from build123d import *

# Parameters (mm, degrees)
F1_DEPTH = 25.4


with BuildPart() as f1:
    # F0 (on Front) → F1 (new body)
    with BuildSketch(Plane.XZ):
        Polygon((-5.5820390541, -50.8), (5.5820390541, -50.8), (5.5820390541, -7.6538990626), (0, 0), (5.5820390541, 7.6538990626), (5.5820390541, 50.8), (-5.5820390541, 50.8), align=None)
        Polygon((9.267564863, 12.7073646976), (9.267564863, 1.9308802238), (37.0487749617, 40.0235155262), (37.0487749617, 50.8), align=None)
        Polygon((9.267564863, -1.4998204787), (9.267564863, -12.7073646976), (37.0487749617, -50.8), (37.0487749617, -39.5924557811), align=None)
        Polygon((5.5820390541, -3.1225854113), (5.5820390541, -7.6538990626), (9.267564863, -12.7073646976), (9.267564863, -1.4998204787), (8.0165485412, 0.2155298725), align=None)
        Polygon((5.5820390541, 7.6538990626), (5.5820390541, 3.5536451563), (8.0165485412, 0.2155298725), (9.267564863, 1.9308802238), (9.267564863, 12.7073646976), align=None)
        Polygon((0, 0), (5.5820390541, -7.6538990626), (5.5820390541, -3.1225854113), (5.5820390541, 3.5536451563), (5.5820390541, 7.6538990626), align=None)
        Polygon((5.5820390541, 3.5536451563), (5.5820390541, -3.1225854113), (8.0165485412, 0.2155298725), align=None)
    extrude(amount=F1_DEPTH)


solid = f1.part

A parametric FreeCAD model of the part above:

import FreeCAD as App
import Part
import Sketcher
from FreeCAD import Vector
Q = App.Units.Quantity

doc = App.newDocument("Part")
body = doc.addObject("PartDesign::Body", "Body")

sketch1 = doc.addObject("Sketcher::SketchObject", "Sketch")
body.addObject(sketch1)
sketch1.AttachmentSupport = (doc.XZ_Plane, [""])
sketch1.MapMode = "FlatFace"
sketch1.addGeometry(Part.LineSegment(Vector(9.3, -1.5, 0), Vector(8, 0.2, 0)), False)
sketch1.addGeometry(Part.LineSegment(Vector(8, 0.2, 0), Vector(9.3, 1.9, 0)), False)
sketch1.addGeometry(Part.LineSegment(Vector(9.3, 1.9, 0), Vector(37, 40, 0)), False)
sketch1.addGeometry(Part.LineSegment(Vector(37, 40, 0), Vector(37, 50.8, 0)), False)
sketch1.addGeometry(Part.LineSegment(Vector(37, 50.8, 0), Vector(9.3, 12.7, 0)), False)
sketch1.addGeometry(Part.LineSegment(Vector(9.3, 12.7, 0), Vector(5.6, 7.7, 0)), False)
sketch1.addGeometry(Part.LineSegment(Vector(5.6, 7.7, 0), Vector(5.6, 50.8, 0)), False)
sketch1.addGeometry(Part.LineSegment(Vector(5.6, 50.8, 0), Vector(-5.6, 50.8, 0)), False)
sketch1.addGeometry(Part.LineSegment(Vector(-5.6, 50.8, 0), Vector(-5.6, -50.8, 0)), False)
sketch1.addGeometry(Part.LineSegment(Vector(-5.6, -50.8, 0), Vector(5.6, -50.8, 0)), False)
sketch1.addGeometry(Part.LineSegment(Vector(5.6, -50.8, 0), Vector(5.6, -7.7, 0)), False)
sketch1.addGeometry(Part.LineSegment(Vector(5.6, -7.7, 0), Vector(9.3, -12.7, 0)), False)
sketch1.addGeometry(Part.LineSegment(Vector(9.3, -12.7, 0), Vector(37, -50.8, 0)), False)
sketch1.addGeometry(Part.LineSegment(Vector(37, -50.8, 0), Vector(37, -39.6, 0)), False)
sketch1.addGeometry(Part.LineSegment(Vector(37, -39.6, 0), Vector(9.3, -1.5, 0)), False)
sketch1.addConstraint(Sketcher.Constraint("Coincident", 0, 2, 1, 1))
sketch1.addConstraint(Sketcher.Constraint("Coincident", 1, 2, 2, 1))
sketch1.addConstraint(Sketcher.Constraint("Coincident", 2, 2, 3, 1))
sketch1.addConstraint(Sketcher.Constraint("Coincident", 3, 2, 4, 1))
sketch1.addConstraint(Sketcher.Constraint("Coincident", 4, 2, 5, 1))
sketch1.addConstraint(Sketcher.Constraint("Coincident", 5, 2, 6, 1))
sketch1.addConstraint(Sketcher.Constraint("Coincident", 6, 2, 7, 1))
sketch1.addConstraint(Sketcher.Constraint("Coincident", 7, 2, 8, 1))
sketch1.addConstraint(Sketcher.Constraint("Coincident", 8, 2, 9, 1))
sketch1.addConstraint(Sketcher.Constraint("Coincident", 9, 2, 10, 1))
sketch1.addConstraint(Sketcher.Constraint("Coincident", 10, 2, 11, 1))
sketch1.addConstraint(Sketcher.Constraint("Coincident", 11, 2, 12, 1))
sketch1.addConstraint(Sketcher.Constraint("Coincident", 12, 2, 13, 1))
sketch1.addConstraint(Sketcher.Constraint("Coincident", 13, 2, 14, 1))
sketch1.addConstraint(Sketcher.Constraint("Coincident", 14, 2, 0, 1))
sketch1.addConstraint(Sketcher.Constraint("Vertical", 3))
sketch1.addConstraint(Sketcher.Constraint("Vertical", 6))
sketch1.addConstraint(Sketcher.Constraint("Horizontal", 7))
sketch1.addConstraint(Sketcher.Constraint("Vertical", 8))
sketch1.addConstraint(Sketcher.Constraint("Horizontal", 9))
sketch1.addConstraint(Sketcher.Constraint("Vertical", 10))
sketch1.addConstraint(Sketcher.Constraint("Vertical", 13))
sketch1.addConstraint(Sketcher.Constraint("Symmetric", 6, 2, 8, 2, -1, 1))
sketch1.addConstraint(Sketcher.Constraint("Symmetric", 5, 2, 10, 2, -1))
sketch1.addConstraint(Sketcher.Constraint("Symmetric", 4, 2, 11, 2, -1))
sketch1.addConstraint(Sketcher.Constraint("Symmetric", 3, 2, 12, 2, -1))
sketch1.addConstraint(Sketcher.Constraint("Parallel", 1, 2))
sketch1.addConstraint(Sketcher.Constraint("Parallel", 2, 4))
sketch1.addConstraint(Sketcher.Constraint("Parallel", 4, 5))
sketch1.addConstraint(Sketcher.Constraint("Parallel", 0, 11))
sketch1.addConstraint(Sketcher.Constraint("Parallel", 12, 14))
sketch1.addConstraint(Sketcher.Constraint("Horizontal", 3, 2, 6, 2))
sketch1.addConstraint(Sketcher.Constraint("Vertical", 1, 2, 4, 2))
sketch1.addConstraint(Sketcher.Constraint("Vertical", 11, 2, 14, 2))
sketch1.addConstraint(Sketcher.Constraint("DistanceY", 8, 2, 8, 1, Q("4 in")))
sketch1.addConstraint(Sketcher.Constraint("DistanceY", 6, 1, 6, 2, 43.146101))
sketch1.addConstraint(Sketcher.Constraint("DistanceX", 7, 2, 7, 1, 11.164078))
sketch1.addConstraint(Sketcher.Constraint("DistanceY", 14, 2, 1, 2, 3.430701))
sketch1.addConstraint(Sketcher.Constraint("Distance", 0, 2.12308))
sketch1.addConstraint(Sketcher.Constraint("Distance", 2, 47.147052))
sketch1.addConstraint(Sketcher.Constraint("DistanceY", 3, 1, 3, 2, 10.776484))
pad1 = doc.addObject("PartDesign::Pad", "Pad")
body.addObject(pad1)
pad1.Profile = sketch1
pad1.Length = Q("1 in")

doc.recompute()
